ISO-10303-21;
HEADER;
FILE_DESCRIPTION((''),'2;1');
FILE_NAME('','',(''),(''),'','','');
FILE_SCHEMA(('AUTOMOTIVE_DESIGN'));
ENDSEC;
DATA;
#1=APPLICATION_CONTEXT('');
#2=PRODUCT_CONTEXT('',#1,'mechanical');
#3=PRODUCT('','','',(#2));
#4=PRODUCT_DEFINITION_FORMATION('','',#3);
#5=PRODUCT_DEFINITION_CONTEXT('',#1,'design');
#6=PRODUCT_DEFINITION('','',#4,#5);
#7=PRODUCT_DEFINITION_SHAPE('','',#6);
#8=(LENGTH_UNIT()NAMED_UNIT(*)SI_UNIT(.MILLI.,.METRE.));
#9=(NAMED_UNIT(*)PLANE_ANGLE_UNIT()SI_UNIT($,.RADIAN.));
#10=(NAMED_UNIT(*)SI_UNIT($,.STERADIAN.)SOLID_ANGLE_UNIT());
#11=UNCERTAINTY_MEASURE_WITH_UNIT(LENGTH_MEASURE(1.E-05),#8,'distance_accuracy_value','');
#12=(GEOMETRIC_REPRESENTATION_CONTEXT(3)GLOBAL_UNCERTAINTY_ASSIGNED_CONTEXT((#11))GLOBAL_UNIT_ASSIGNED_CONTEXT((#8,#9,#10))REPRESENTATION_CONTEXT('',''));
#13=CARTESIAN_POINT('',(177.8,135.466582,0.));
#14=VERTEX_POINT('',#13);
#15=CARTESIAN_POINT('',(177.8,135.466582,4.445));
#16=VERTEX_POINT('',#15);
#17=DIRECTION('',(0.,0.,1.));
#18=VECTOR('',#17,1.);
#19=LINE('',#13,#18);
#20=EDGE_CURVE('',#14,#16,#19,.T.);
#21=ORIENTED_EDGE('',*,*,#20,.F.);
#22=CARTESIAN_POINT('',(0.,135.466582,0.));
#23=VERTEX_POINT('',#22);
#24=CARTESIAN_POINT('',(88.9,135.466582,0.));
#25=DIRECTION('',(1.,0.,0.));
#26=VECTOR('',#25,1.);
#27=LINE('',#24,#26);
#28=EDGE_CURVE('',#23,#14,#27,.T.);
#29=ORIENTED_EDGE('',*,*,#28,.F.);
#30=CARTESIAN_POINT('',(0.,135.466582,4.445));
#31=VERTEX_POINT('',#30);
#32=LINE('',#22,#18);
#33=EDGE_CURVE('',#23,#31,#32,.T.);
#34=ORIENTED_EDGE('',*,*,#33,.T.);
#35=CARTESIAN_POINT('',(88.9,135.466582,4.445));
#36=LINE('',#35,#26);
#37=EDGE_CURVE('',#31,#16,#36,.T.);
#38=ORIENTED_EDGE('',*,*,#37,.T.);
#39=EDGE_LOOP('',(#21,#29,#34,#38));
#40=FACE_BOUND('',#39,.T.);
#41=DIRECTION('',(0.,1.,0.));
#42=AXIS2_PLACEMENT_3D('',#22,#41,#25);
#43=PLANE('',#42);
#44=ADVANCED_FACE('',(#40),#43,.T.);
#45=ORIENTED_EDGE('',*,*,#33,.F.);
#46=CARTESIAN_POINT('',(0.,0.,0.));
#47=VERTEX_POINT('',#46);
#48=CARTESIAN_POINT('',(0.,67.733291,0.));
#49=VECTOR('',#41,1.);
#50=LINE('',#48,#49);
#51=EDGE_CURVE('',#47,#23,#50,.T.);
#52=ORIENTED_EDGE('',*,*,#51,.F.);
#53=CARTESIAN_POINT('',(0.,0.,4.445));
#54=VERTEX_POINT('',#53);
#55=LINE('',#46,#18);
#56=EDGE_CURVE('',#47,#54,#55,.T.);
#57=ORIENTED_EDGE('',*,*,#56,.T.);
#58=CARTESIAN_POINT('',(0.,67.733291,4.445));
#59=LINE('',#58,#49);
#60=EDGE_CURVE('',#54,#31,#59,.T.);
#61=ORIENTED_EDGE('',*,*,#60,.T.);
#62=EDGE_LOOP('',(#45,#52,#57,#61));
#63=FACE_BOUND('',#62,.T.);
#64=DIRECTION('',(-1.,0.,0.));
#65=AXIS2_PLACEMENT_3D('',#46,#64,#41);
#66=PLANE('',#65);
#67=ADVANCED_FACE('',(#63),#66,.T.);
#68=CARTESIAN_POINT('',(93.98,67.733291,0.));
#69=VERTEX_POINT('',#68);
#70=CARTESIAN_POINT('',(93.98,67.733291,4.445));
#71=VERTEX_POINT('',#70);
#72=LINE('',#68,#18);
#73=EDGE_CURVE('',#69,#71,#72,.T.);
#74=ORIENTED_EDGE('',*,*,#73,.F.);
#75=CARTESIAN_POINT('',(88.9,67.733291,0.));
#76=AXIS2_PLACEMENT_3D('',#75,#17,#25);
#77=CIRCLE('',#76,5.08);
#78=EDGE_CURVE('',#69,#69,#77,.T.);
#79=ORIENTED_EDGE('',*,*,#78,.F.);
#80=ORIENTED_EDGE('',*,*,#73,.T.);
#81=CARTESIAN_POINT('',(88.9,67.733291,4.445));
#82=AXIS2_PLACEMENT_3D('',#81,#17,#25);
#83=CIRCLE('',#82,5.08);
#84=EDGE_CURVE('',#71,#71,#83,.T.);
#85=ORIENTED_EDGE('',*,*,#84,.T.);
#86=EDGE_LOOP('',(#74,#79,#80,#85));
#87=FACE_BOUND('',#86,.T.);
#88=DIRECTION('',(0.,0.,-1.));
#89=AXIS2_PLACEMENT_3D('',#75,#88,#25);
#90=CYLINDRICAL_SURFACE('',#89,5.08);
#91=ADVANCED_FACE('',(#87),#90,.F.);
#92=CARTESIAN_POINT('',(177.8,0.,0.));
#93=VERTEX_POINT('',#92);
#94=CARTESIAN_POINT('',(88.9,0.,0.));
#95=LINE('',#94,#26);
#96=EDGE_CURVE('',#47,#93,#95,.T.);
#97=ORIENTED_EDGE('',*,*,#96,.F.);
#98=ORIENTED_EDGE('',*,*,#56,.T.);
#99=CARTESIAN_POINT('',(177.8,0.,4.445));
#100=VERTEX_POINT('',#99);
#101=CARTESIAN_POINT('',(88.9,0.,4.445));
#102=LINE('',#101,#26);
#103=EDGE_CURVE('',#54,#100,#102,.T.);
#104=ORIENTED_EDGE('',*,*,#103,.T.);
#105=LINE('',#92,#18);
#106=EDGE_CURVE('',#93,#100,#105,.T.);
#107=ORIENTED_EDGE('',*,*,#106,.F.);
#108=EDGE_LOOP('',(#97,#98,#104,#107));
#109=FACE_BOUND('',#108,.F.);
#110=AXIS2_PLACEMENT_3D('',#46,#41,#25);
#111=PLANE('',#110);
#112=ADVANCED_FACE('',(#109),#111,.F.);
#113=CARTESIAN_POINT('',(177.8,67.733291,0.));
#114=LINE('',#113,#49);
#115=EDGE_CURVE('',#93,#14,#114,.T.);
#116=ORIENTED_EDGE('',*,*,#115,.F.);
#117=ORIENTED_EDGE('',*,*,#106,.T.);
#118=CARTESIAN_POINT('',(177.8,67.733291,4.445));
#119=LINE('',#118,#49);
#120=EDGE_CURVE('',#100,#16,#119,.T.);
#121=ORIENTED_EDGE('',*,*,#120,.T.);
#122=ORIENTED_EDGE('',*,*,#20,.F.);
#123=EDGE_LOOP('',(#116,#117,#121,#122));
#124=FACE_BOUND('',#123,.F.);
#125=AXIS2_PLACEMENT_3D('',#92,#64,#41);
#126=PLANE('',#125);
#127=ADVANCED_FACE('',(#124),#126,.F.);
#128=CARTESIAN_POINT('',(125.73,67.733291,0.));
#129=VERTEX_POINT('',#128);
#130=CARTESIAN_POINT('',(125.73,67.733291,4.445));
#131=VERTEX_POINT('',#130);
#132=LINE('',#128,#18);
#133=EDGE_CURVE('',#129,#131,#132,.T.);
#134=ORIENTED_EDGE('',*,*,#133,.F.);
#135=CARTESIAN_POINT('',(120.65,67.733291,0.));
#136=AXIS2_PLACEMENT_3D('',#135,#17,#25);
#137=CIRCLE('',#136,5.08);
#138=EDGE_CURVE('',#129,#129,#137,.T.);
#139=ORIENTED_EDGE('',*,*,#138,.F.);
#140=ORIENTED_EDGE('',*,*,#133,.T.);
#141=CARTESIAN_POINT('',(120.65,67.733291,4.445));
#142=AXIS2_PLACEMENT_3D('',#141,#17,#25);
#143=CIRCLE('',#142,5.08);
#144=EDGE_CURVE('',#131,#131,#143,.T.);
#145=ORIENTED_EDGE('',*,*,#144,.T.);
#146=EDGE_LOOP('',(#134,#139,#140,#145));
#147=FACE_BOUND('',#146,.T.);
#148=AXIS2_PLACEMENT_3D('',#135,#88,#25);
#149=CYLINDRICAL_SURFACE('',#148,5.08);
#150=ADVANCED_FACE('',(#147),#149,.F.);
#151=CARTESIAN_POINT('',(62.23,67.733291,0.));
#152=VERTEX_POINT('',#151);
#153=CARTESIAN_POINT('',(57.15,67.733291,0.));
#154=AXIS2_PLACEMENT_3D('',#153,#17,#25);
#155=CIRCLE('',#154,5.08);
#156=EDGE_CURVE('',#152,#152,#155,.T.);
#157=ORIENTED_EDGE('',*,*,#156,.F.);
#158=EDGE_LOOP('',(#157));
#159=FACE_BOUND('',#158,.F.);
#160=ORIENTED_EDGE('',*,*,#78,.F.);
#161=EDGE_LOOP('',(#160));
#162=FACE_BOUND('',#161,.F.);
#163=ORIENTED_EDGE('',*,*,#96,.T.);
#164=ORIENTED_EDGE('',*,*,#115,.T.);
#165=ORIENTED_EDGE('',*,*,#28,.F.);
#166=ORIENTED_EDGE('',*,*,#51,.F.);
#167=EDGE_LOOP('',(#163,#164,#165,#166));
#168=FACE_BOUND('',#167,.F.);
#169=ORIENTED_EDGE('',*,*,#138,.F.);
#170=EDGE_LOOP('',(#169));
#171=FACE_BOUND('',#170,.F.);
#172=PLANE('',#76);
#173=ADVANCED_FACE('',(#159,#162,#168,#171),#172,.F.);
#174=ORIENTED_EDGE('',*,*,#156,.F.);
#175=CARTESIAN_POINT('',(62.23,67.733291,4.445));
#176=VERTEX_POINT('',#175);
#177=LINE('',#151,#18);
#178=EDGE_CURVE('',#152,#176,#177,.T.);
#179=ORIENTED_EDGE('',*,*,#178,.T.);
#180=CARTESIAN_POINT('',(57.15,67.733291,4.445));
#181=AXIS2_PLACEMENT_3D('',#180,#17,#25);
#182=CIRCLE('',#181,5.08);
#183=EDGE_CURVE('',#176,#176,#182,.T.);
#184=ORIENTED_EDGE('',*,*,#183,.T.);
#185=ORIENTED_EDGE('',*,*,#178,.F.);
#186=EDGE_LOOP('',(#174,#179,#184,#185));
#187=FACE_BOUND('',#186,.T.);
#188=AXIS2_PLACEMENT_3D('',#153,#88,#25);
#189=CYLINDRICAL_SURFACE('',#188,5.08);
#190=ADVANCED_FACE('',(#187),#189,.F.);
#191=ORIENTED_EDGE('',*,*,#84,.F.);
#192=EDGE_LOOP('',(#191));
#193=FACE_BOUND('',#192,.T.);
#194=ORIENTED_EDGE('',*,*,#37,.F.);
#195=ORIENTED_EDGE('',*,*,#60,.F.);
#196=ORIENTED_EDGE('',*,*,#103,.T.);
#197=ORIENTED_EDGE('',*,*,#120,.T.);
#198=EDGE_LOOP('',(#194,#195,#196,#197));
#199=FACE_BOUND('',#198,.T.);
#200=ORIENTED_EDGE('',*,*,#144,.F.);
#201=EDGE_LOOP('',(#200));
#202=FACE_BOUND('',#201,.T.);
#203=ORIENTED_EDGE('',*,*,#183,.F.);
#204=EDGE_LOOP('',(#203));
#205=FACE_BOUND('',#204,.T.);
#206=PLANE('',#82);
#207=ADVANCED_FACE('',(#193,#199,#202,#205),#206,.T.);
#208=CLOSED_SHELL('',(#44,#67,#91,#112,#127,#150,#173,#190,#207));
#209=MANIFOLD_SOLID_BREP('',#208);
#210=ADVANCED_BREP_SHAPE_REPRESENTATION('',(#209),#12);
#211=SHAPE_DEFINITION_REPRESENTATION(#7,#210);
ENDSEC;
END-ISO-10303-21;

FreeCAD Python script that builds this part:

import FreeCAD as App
import Part
import Sketcher
Q = App.Units.Quantity

doc = App.newDocument("Part")
params = doc.addObject("Spreadsheet::Sheet", "Params")
for row, (alias, value) in enumerate([
    ("sketch1_diameter", "0.4 in"),
    ("sketch1_width", "7 in"),
    ("pad1_length", "0.175 in"),
], start=1):
    params.set(f"A{row}", alias)
    params.set(f"B{row}", "=" + value)
    params.setAlias(f"B{row}", alias)

body = doc.addObject("PartDesign::Body", "Body")

# Sketch on XY plane
sketch1 = doc.addObject("Sketcher::SketchObject", "Sketch")
body.addObject(sketch1)
sketch1.AttachmentSupport = (doc.XY_Plane, [""])
sketch1.MapMode = "FlatFace"
sketch1.addGeometry(Part.LineSegment(App.Vector(0, 135, 0), App.Vector(0, 0, 0)), False)
sketch1.addGeometry(Part.LineSegment(App.Vector(0, 0, 0), App.Vector(178, 0, 0)), False)
sketch1.addGeometry(Part.LineSegment(App.Vector(178, 0, 0), App.Vector(178, 135, 0)), False)
sketch1.addGeometry(Part.LineSegment(App.Vector(178, 135, 0), App.Vector(0, 135, 0)), False)
sketch1.addGeometry(Part.Circle(App.Vector(57, 68, 0), App.Vector(0, 0, 1), 5), False)
sketch1.addGeometry(Part.Circle(App.Vector(89, 68, 0), App.Vector(0, 0, 1), 5), False)
sketch1.addGeometry(Part.Circle(App.Vector(121, 68, 0), App.Vector(0, 0, 1), 5), False)
sketch1.addConstraint(Sketcher.Constraint("Coincident", 0, 2, 1, 1))
sketch1.addConstraint(Sketcher.Constraint("Coincident", 1, 2, 2, 1))
sketch1.addConstraint(Sketcher.Constraint("Coincident", 2, 2, 3, 1))
sketch1.addConstraint(Sketcher.Constraint("Coincident", 3, 2, 0, 1))
sketch1.addConstraint(Sketcher.Constraint("Vertical", 0))
sketch1.addConstraint(Sketcher.Constraint("Horizontal", 1))
sketch1.addConstraint(Sketcher.Constraint("Vertical", 2))
sketch1.addConstraint(Sketcher.Constraint("Horizontal", 3))
sketch1.addConstraint(Sketcher.Constraint("Coincident", 0, 2, -1, 1))
sketch1.addConstraint(Sketcher.Constraint("Equal", 4, 5))
sketch1.addConstraint(Sketcher.Constraint("Equal", 5, 6))
sketch1.addConstraint(Sketcher.Constraint("Horizontal", 4, 3, 5, 3))
sketch1.addConstraint(Sketcher.Constraint("Horizontal", 5, 3, 6, 3))
sketch1.addConstraint(Sketcher.Constraint("Diameter", 4, Q("0.4 in")))
sketch1.addConstraint(Sketcher.Constraint("DistanceX", 1, 1, 1, 2, Q("7 in")))
sketch1.addConstraint(Sketcher.Constraint("DistanceX", -1, 1, 5, 3, Q("3.5 in")))
sketch1.addConstraint(Sketcher.Constraint("DistanceX", 4, 3, 6, 3, Q("2.5 in")))
sketch1.addConstraint(Sketcher.Constraint("DistanceX", -1, 1, 4, 3, Q("2.25 in")))
sketch1.addConstraint(Sketcher.Constraint("DistanceY", 0, 2, 0, 1, Q("135.466582 mm")))
sketch1.addConstraint(Sketcher.Constraint("DistanceY", -1, 1, 4, 3, Q("67.733291 mm")))
sketch1.setExpression("Constraints[13]", "Params.sketch1_diameter")
sketch1.setExpression("Constraints[14]", "Params.sketch1_width")
pad1 = doc.addObject("PartDesign::Pad", "Pad")
body.addObject(pad1)
pad1.Profile = sketch1
pad1.setExpression("Length", "Params.pad1_length")

doc.recompute()
